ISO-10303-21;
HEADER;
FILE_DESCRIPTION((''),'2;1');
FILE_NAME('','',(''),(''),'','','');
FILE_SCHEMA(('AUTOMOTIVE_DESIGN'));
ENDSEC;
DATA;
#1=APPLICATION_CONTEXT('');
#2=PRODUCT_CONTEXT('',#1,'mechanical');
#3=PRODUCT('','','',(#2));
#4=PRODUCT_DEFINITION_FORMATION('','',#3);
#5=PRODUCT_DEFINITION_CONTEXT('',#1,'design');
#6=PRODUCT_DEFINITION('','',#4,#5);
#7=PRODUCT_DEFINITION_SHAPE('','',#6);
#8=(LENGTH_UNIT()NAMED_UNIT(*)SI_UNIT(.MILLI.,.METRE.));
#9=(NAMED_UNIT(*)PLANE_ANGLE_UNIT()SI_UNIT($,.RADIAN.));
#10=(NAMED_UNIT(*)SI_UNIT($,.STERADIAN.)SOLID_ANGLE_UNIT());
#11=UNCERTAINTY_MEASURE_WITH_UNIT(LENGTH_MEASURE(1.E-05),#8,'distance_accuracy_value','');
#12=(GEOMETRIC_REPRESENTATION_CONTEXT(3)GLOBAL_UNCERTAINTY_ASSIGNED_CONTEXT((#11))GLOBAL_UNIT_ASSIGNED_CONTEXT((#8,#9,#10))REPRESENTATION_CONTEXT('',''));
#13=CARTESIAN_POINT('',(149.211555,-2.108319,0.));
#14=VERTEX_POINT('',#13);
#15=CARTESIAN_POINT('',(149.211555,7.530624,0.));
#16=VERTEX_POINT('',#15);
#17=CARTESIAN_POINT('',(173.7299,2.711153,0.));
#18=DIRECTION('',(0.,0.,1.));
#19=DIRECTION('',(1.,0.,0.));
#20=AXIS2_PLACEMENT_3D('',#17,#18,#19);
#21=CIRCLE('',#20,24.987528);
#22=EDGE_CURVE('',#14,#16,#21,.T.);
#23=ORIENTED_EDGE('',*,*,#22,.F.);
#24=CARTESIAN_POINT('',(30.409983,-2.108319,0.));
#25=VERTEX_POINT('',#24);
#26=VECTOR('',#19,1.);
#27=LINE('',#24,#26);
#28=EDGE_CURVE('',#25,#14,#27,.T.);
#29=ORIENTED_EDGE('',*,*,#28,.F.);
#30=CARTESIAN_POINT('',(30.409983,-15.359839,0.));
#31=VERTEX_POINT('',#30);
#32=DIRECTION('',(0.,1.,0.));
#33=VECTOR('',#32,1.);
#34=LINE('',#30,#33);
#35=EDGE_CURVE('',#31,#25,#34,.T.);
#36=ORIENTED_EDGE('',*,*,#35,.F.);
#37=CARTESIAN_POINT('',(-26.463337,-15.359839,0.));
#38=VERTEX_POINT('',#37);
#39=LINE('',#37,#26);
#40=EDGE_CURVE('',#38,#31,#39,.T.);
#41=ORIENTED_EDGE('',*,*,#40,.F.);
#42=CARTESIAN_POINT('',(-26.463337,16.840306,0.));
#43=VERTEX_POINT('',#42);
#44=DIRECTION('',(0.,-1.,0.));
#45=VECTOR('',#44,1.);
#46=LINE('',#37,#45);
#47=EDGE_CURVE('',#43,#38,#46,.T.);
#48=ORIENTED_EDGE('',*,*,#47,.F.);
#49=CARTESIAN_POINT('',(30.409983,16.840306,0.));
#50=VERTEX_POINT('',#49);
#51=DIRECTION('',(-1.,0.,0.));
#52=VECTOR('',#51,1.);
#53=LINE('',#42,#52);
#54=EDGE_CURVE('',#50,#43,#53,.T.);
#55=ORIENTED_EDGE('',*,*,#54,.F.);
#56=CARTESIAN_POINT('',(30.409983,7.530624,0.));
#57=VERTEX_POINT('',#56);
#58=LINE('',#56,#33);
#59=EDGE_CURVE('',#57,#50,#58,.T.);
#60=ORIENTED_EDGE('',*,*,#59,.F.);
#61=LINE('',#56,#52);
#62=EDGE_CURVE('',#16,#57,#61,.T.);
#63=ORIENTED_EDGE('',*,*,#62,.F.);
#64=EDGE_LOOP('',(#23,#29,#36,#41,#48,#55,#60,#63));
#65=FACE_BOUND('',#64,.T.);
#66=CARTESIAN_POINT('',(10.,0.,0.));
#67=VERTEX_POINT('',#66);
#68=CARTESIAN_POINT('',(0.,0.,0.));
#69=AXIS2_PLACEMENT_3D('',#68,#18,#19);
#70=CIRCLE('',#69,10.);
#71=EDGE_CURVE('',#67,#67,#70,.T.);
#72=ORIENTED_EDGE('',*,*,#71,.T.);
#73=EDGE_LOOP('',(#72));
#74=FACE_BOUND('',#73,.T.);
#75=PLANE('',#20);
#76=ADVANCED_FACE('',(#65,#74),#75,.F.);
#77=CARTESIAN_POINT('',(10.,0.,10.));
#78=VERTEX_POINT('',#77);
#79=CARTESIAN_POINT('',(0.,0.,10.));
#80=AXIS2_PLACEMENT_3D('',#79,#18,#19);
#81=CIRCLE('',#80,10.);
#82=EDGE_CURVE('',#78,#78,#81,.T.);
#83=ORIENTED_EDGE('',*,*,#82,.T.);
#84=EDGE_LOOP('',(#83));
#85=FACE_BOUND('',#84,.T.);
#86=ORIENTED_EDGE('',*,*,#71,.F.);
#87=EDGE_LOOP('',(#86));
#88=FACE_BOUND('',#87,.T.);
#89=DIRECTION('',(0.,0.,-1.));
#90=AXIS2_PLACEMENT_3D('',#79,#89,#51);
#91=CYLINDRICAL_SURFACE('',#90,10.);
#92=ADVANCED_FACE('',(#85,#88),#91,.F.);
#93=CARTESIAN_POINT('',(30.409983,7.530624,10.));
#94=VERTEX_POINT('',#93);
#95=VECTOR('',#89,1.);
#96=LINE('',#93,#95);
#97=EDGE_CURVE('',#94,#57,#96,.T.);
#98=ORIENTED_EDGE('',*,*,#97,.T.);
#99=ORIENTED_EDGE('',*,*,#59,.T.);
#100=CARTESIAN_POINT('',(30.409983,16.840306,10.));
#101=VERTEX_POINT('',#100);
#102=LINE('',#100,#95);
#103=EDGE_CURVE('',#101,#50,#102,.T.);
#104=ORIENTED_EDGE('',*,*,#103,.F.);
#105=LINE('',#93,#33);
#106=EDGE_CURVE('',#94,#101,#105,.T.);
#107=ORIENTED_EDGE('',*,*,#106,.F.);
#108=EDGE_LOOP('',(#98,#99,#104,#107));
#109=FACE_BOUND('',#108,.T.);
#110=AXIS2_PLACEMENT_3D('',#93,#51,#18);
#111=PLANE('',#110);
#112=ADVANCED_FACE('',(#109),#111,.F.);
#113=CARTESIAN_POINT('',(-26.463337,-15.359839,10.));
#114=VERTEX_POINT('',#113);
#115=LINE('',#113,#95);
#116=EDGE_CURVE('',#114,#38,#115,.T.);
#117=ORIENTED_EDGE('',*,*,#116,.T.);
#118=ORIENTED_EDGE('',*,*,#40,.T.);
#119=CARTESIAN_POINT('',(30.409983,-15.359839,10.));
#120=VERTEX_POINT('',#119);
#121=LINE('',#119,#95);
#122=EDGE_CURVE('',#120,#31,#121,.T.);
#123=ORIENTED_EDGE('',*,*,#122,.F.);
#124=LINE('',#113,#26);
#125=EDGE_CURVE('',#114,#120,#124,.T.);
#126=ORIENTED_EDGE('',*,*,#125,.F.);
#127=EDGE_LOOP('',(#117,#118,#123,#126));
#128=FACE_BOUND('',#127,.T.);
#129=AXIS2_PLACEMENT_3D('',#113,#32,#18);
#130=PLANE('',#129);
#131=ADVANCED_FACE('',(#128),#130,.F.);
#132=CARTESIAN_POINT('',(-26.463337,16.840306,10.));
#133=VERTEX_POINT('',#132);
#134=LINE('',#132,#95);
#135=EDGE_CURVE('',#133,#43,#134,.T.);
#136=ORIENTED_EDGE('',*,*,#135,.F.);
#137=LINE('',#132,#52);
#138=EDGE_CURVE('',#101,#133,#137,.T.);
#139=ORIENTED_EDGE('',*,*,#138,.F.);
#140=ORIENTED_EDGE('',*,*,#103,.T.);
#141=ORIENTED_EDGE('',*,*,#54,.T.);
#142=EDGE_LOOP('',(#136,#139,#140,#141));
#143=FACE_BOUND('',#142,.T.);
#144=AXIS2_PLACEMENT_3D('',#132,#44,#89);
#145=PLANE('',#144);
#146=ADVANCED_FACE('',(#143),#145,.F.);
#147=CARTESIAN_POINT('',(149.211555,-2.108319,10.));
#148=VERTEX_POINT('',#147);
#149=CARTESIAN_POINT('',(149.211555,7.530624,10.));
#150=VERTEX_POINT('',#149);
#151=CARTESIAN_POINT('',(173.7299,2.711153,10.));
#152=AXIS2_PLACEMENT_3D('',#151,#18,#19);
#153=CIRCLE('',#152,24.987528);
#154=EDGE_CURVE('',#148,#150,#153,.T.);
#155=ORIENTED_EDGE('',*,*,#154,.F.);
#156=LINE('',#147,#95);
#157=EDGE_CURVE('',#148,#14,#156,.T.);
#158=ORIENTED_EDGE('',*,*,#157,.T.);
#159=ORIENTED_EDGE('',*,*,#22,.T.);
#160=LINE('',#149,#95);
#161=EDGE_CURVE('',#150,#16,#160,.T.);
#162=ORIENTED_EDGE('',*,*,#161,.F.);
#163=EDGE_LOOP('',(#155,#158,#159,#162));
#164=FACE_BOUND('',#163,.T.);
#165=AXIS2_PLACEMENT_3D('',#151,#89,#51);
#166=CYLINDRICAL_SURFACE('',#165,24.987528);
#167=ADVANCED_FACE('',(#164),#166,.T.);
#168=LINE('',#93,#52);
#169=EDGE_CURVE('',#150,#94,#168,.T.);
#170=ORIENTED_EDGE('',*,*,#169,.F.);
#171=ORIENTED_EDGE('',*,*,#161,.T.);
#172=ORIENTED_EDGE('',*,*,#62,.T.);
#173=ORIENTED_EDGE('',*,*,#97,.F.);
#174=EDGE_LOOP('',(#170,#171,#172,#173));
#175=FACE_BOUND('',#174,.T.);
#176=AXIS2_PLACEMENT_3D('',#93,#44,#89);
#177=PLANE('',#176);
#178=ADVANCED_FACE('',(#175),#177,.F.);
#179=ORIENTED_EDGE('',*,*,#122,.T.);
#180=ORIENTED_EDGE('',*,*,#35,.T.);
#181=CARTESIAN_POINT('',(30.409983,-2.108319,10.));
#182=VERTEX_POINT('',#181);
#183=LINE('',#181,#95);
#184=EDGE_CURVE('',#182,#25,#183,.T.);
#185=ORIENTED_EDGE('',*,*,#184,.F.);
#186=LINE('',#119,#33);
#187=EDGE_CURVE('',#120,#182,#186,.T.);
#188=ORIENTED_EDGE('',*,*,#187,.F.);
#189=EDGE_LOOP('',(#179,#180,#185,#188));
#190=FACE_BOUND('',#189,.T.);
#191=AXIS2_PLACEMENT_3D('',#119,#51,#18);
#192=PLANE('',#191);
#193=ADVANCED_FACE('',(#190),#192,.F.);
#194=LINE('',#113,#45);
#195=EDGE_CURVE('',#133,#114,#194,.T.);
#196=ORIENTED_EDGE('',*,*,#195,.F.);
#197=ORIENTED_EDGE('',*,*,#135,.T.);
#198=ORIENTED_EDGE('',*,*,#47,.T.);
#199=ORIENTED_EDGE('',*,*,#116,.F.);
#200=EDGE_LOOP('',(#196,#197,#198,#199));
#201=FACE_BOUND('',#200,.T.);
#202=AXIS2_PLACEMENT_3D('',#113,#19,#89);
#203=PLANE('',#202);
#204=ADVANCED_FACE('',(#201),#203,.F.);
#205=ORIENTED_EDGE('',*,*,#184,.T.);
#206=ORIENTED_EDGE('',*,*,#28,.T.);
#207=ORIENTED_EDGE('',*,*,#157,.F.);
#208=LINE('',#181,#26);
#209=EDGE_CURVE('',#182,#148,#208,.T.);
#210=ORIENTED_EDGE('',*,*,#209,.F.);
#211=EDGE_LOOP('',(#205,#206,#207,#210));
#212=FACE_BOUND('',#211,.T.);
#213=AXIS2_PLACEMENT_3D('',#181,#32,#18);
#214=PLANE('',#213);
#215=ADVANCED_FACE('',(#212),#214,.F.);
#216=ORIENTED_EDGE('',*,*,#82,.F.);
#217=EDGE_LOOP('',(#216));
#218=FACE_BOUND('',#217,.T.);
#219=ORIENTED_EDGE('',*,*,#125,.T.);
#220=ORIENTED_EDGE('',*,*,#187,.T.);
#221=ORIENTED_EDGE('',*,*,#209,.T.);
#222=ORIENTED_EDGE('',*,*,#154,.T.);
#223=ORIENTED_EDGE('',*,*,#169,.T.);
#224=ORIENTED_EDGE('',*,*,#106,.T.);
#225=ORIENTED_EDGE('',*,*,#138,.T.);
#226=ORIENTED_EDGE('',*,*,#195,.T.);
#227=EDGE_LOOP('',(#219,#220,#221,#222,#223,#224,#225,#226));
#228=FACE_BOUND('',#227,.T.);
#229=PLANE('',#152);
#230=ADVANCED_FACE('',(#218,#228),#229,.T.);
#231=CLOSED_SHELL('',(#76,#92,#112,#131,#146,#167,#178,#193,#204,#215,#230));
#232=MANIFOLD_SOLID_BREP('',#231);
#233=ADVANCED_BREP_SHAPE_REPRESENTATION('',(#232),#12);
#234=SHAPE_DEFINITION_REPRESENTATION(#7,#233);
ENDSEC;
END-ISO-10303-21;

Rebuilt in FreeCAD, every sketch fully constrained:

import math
import FreeCAD as App
import Part
import Sketcher

doc = App.newDocument("Part")
body = doc.addObject("PartDesign::Body", "Body")

# Sketch on XY plane
sketch1 = body.newObject("Sketcher::SketchObject", "Sketch")
sketch1.AttachmentSupport = (doc.getObject("XY_Plane"), [""])
sketch1.MapMode = "FlatFace"
sketch1.addGeometry([
    Part.LineSegment(App.Vector(30.409983, 7.530624, 0), App.Vector(30.409983, 16.840306, 0)),  # 0
    Part.LineSegment(App.Vector(30.409983, 16.840306, 0), App.Vector(-26.463337, 16.840306, 0)),  # 1
    Part.LineSegment(App.Vector(-26.463337, 16.840306, 0), App.Vector(-26.463337, -15.359839, 0)),  # 2
    Part.LineSegment(App.Vector(-26.463337, -15.359839, 0), App.Vector(30.409983, -15.359839, 0)),  # 3
    Part.LineSegment(App.Vector(30.409983, -15.359839, 0), App.Vector(30.409983, -2.108319, 0)),  # 4
    Part.LineSegment(App.Vector(30.409983, -2.108319, 0), App.Vector(149.211555, -2.108319, 0)),  # 5
    Part.ArcOfCircle(Part.Circle(App.Vector(173.7299, 2.711153, 0), App.Vector(0, 0, 1), 24.987528), math.radians(-168.879382), math.radians(168.879382)),  # 6
    Part.LineSegment(App.Vector(149.211555, 7.530624, 0), App.Vector(30.409983, 7.530624, 0)),  # 7
    Part.Circle(App.Vector(0, 0, 0), App.Vector(0, 0, 1), 10),  # 8
], False)
sketch1.addConstraint([
    Sketcher.Constraint("Coincident", 0, 2, 1, 1),
    Sketcher.Constraint("Coincident", 1, 2, 2, 1),
    Sketcher.Constraint("Coincident", 2, 2, 3, 1),
    Sketcher.Constraint("Coincident", 3, 2, 4, 1),
    Sketcher.Constraint("Coincident", 4, 2, 5, 1),
    Sketcher.Constraint("Coincident", 5, 2, 6, 1),
    Sketcher.Constraint("Coincident", 6, 2, 7, 1),
    Sketcher.Constraint("Coincident", 7, 2, 0, 1),
    Sketcher.Constraint("Vertical", 0),
    Sketcher.Constraint("Horizontal", 1),
    Sketcher.Constraint("Vertical", 2),
    Sketcher.Constraint("Horizontal", 3),
    Sketcher.Constraint("Vertical", 4),
    Sketcher.Constraint("Horizontal", 5),
    Sketcher.Constraint("Horizontal", 7),
    Sketcher.Constraint("Coincident", 8, 3, -1, 1),
    Sketcher.Constraint("Vertical", 0, 2, 3, 2),
    Sketcher.Constraint("Vertical", 5, 2, 6, 2),
    Sketcher.Constraint("Diameter", 8, 20.0),
    Sketcher.Constraint("Radius", 6, 24.987528),
    Sketcher.Constraint("DistanceX", 1, 2, 1, 1, 56.873321),
    Sketcher.Constraint("DistanceX", 5, 1, 5, 2, 118.801572),
    Sketcher.Constraint("DistanceY", 0, 1, 0, 2, 9.309682),
    Sketcher.Constraint("DistanceY", 4, 1, 4, 2, 13.251521),
    Sketcher.Constraint("DistanceX", -1, 1, 6, 3, 173.7299),
    Sketcher.Constraint("DistanceY", 2, 2, 2, 1, 32.200145),
    Sketcher.Constraint("DistanceY", 2, 2, -1, 1, 15.359839),
])
pad1 = body.newObject("PartDesign::Pad", "Pad")
pad1.Profile = sketch1
pad1.Length = 10

doc.recompute()
